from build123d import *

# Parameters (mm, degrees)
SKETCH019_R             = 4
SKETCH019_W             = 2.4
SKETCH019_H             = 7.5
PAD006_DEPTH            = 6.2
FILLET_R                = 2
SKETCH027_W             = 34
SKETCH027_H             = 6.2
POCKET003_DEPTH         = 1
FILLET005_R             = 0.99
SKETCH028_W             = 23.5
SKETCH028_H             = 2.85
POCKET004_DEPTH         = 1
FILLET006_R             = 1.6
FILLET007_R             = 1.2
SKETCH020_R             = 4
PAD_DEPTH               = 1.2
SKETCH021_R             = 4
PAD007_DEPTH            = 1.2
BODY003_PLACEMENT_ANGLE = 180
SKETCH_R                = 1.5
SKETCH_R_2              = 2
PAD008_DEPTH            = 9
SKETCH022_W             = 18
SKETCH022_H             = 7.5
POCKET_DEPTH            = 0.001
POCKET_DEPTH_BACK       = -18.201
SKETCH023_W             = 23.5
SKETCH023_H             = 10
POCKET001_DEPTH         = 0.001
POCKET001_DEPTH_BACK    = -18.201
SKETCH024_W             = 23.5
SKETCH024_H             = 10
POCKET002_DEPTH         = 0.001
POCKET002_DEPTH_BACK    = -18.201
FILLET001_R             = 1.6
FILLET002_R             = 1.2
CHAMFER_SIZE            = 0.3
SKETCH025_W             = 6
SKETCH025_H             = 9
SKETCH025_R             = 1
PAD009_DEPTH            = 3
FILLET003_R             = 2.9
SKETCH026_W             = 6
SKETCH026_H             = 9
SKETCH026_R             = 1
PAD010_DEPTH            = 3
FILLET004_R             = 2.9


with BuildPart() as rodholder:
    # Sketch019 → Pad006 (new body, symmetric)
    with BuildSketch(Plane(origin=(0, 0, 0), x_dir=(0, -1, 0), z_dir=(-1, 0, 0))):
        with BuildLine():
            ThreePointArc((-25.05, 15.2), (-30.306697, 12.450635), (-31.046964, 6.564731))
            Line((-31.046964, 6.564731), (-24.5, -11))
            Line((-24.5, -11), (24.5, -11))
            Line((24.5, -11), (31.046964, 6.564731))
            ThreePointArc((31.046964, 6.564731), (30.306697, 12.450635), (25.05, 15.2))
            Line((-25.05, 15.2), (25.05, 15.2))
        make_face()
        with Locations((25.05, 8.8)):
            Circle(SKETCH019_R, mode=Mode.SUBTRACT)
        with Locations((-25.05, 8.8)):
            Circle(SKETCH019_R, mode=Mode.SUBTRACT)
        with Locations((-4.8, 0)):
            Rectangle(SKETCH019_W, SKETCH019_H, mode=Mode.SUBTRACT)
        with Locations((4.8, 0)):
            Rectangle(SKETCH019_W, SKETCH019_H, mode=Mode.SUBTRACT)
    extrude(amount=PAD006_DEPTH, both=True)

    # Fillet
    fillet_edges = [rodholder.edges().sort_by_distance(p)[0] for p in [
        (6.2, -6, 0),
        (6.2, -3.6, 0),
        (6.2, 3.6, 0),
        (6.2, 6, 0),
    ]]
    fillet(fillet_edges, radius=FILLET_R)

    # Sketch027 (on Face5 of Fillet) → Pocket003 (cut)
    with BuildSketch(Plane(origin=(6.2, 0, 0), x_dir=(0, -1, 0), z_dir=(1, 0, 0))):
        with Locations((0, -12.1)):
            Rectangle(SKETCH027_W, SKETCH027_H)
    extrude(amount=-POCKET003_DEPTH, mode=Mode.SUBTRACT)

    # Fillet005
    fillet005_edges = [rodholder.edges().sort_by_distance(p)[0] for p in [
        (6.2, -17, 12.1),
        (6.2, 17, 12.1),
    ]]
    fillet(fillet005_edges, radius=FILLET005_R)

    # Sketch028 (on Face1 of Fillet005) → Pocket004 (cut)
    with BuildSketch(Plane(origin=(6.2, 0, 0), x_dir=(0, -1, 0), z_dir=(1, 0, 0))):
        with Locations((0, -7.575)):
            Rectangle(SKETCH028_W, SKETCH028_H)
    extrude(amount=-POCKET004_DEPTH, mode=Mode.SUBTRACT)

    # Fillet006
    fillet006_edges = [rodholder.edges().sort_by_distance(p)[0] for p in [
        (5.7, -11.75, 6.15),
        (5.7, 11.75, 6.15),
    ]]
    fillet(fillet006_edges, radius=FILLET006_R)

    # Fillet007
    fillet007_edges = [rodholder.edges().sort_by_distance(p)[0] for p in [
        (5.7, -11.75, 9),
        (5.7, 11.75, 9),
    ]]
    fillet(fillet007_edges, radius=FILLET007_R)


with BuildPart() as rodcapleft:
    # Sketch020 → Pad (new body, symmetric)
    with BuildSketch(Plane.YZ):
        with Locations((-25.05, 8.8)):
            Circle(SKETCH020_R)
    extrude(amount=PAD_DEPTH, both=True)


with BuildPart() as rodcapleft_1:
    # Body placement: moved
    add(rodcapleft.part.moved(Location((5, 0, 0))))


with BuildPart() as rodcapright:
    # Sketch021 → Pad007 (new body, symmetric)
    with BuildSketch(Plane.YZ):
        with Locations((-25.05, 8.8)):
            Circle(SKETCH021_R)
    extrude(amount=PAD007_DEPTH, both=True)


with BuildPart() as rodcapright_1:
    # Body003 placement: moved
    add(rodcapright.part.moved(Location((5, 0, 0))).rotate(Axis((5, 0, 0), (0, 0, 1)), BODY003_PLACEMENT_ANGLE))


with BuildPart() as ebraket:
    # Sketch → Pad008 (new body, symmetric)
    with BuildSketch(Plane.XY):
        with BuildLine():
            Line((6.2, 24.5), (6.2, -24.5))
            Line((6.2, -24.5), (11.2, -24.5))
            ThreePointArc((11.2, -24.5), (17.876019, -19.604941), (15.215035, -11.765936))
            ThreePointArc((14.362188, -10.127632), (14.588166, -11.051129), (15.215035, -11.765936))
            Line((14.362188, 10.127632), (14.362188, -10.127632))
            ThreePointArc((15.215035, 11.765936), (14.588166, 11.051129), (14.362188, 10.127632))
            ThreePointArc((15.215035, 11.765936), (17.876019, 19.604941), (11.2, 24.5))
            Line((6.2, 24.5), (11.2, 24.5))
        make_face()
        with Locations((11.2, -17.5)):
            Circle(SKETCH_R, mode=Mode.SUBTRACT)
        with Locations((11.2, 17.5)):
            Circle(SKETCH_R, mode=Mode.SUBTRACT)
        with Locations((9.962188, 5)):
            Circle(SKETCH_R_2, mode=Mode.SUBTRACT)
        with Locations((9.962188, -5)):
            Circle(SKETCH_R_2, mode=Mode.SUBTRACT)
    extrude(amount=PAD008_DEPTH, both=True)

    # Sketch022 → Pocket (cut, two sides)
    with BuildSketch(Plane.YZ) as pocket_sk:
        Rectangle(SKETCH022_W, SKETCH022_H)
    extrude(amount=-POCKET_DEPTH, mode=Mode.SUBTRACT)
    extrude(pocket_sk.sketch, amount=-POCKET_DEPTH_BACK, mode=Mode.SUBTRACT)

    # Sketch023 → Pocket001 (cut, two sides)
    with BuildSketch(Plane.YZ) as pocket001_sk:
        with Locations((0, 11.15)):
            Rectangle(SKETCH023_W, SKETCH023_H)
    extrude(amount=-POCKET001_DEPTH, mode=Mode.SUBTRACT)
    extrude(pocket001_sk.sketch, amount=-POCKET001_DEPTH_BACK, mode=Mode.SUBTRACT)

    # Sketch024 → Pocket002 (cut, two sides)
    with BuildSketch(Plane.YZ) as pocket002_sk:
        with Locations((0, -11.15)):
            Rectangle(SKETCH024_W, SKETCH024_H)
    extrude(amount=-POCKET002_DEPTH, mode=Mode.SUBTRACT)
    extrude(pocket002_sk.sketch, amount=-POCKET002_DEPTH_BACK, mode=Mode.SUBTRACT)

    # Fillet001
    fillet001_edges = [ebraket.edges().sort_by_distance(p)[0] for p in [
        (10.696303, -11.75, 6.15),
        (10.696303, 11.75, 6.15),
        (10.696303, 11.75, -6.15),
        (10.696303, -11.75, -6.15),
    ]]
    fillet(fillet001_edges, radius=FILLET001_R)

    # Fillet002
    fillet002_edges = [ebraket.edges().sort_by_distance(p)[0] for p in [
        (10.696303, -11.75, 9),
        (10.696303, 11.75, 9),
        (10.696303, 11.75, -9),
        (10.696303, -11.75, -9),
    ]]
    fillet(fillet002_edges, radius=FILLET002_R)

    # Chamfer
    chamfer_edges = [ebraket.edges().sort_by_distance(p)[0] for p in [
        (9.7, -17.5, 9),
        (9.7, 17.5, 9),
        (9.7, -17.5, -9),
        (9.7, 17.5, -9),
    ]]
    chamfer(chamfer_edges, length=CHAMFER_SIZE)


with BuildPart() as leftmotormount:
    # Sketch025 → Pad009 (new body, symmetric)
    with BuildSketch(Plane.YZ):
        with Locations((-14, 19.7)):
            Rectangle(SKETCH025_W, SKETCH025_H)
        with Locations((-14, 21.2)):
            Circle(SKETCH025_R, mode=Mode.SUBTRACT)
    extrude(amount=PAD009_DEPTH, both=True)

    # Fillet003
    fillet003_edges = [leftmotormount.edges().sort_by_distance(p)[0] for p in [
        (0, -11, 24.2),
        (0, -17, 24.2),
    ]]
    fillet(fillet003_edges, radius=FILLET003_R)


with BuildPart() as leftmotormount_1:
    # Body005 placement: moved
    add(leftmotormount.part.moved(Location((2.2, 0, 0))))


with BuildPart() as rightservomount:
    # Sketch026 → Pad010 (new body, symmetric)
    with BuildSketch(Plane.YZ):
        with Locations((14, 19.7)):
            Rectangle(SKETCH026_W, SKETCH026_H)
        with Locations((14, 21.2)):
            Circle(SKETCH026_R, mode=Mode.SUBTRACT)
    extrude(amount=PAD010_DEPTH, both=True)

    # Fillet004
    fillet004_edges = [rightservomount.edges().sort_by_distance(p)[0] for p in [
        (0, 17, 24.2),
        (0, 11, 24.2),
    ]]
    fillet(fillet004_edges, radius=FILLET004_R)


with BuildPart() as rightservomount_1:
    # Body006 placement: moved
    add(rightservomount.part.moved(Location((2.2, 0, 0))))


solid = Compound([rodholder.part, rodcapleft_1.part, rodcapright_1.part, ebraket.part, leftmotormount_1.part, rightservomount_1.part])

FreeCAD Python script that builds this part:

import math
import FreeCAD as App
import Part
import Sketcher
from FreeCAD import Vector
Q = App.Units.Quantity


def edges_at(feature, points):
    """Names of the edges that pass closest to the given points."""
    edges = feature.Shape.Edges
    near = lambda p: min(range(len(edges)), key=lambda i: edges[i].distToShape(Part.Vertex(*p))[0])
    return sorted({f"Edge{near(p) + 1}" for p in points})


def add_polygon(sketch, points):
    """Adds a closed chain of lines whose ends are joined by coincident constraints."""
    first, n = sketch.GeometryCount, len(points)
    for a, b in zip(points, points[1:] + points[:1]):
        sketch.addGeometry(Part.LineSegment(App.Vector(*a, 0), App.Vector(*b, 0)), False)
    for i in range(n):
        sketch.addConstraint(Sketcher.Constraint("Coincident", first + i, 2, first + (i + 1) % n, 1))

doc = App.newDocument("Part")
params = doc.addObject("Spreadsheet::Sheet", "Params")
for row, (alias, value) in enumerate([
    ("sketch1_diameter", "8 mm"),
    ("sketch1_radius", "6.400001 mm"),
    ("sketch1_width", "49 mm"),
    ("sketch1_width2", "50.1 mm"),
    ("sketch1_width3", "2.4 mm"),
    ("pad1_length", "12.4 mm"),
    ("fillet_radius", "2 mm"),
    ("sketch2_width", "34 mm"),
    ("sketch2_height", "6.2 mm"),
    ("pocket1_length", "1 mm"),
    ("fillet2_radius", "0.99 mm"),
    ("sketch3_width", "23.5 mm"),
    ("sketch3_height", "2.85 mm"),
    ("pocket2_length", "1 mm"),
    ("fillet3_radius", "1.6 mm"),
    ("fillet4_radius", "1.2 mm"),
    ("sketch4_diameter", "8 mm"),
    ("pad2_length", "2.4 mm"),
    ("sketch5_diameter", "8 mm"),
    ("pad3_length", "2.4 mm"),
    ("sketch6_diameter", "4 mm"),
    ("sketch6_diameter2", "3 mm"),
    ("sketch6_radius", "7 mm"),
    ("sketch6_width", "5 mm"),
    ("sketch6_height", "49 mm"),
    ("pad4_length", "18 mm"),
    ("sketch7_width", "18 mm"),
    ("sketch7_height", "7.5 mm"),
    ("sketch8_height", "10 mm"),
    ("sketch8_width", "23.5 mm"),
    ("sketch9_height", "10 mm"),
    ("sketch9_width", "23.5 mm"),
    ("fillet5_radius", "1.6 mm"),
    ("fillet6_radius", "1.2 mm"),
    ("chamfer_size", "0.3 mm"),
    ("sketch10_diameter", "2 mm"),
    ("sketch10_width", "6 mm"),
    ("sketch10_height", "9 mm"),
    ("pad5_length", "6 mm"),
    ("fillet7_radius", "2.9 mm"),
    ("sketch11_diameter", "2 mm"),
    ("sketch11_width", "6 mm"),
    ("sketch11_height", "9 mm"),
    ("pad6_length", "6 mm"),
    ("fillet8_radius", "2.9 mm"),
], start=1):
    params.set(f"A{row}", alias)
    params.set(f"B{row}", "=" + value)
    params.setAlias(f"B{row}", alias)

body = doc.addObject("PartDesign::Body", "Body")

# Sketch on YZ plane
sketch1 = body.newObject("Sketcher::SketchObject", "Sketch")
sketch1.AttachmentSupport = (doc.getObject("YZ_Plane"), [""])
sketch1.MapMode = "FlatFace"
sketch1.addGeometry(Part.ArcOfCircle(Part.Circle(Vector(25, 8.8, 0), Vector(0, 0, 1), 6.4), math.radians(-20), math.radians(90)), False)  # 0
sketch1.addGeometry(Part.LineSegment(Vector(31, 6.6, 0), Vector(24.5, -11, 0)), False)  # 1
sketch1.addGeometry(Part.LineSegment(Vector(24.5, -11, 0), Vector(-24.5, -11, 0)), False)  # 2
sketch1.addGeometry(Part.LineSegment(Vector(-24.5, -11, 0), Vector(-31, 6.6, 0)), False)  # 3
sketch1.addGeometry(Part.ArcOfCircle(Part.Circle(Vector(-25, 8.8, 0), Vector(0, 0, 1), 6.4), math.radians(90), math.radians(200)), False)  # 4
sketch1.addGeometry(Part.LineSegment(Vector(-25.1, 15.2, 0), Vector(25.1, 15.2, 0)), False)  # 5
add_polygon(sketch1, [(3.6, -3.8), (6, -3.8), (6, 3.8), (3.6, 3.8)])  # lines 6-9
add_polygon(sketch1, [(-6, -3.8), (-3.6, -3.8), (-3.6, 3.8), (-6, 3.8)])  # lines 10-13
sketch1.addGeometry(Part.Circle(Vector(25.1, 8.8, 0), Vector(0, 0, 1), 4), False)  # 14
sketch1.addGeometry(Part.Circle(Vector(-25.1, 8.8, 0), Vector(0, 0, 1), 4), False)  # 15
sketch1.addConstraint([
    Sketcher.Constraint("Tangent", 0, 1, 1, 1),
    Sketcher.Constraint("Coincident", 1, 2, 2, 1),
    Sketcher.Constraint("Coincident", 2, 2, 3, 1),
    Sketcher.Constraint("Tangent", 3, 2, 4, 2),
    Sketcher.Constraint("Tangent", 4, 1, 5, 1),
    Sketcher.Constraint("Tangent", 5, 2, 0, 2),
    Sketcher.Constraint("Horizontal", 2),
    Sketcher.Constraint("Horizontal", 5),
    Sketcher.Constraint("Horizontal", 6),
    Sketcher.Constraint("Vertical", 7),
    Sketcher.Constraint("Horizontal", 8),
    Sketcher.Constraint("Vertical", 9),
    Sketcher.Constraint("Horizontal", 10),
    Sketcher.Constraint("Vertical", 11),
    Sketcher.Constraint("Horizontal", 12),
    Sketcher.Constraint("Vertical", 13),
    Sketcher.Constraint("Coincident", 14, 3, 0, 3),
    Sketcher.Constraint("Coincident", 15, 3, 4, 3),
    Sketcher.Constraint("Equal", 0, 4),
    Sketcher.Constraint("Equal", 14, 15),
    Sketcher.Constraint("Symmetric", 8, 2, 10, 2, -1, 1),
    Sketcher.Constraint("Symmetric", 6, 2, 12, 2, -1, 1),
    Sketcher.Constraint("Symmetric", 0, 1, 3, 2, -2),
    Sketcher.Constraint("Horizontal", 9, 2, 10, 2),
    Sketcher.Constraint("Diameter", 14, Q("8 mm")),
    Sketcher.Constraint("Radius", 0, Q("6.400001 mm")),
    Sketcher.Constraint("DistanceX", 2, 2, 2, 1, Q("49 mm")),
    Sketcher.Constraint("DistanceX", 5, 1, 5, 2, Q("50.1 mm")),
    Sketcher.Constraint("DistanceX", 6, 1, 6, 2, Q("2.4 mm")),
    Sketcher.Constraint("DistanceY", 7, 1, 7, 2, Q("7.5 mm")),
    Sketcher.Constraint("DistanceY", 1, 2, -1, 1, Q("11 mm")),
    Sketcher.Constraint("DistanceX", -1, 1, 6, 2, Q("6 mm")),
    Sketcher.Constraint("DistanceY", -1, 1, 0, 3, Q("8.799999 mm")),
])
sketch1.setExpression("Constraints[32]", "Params.sketch1_diameter")
sketch1.setExpression("Constraints[33]", "Params.sketch1_radius")
sketch1.setExpression("Constraints[34]", "Params.sketch1_width")
sketch1.setExpression("Constraints[35]", "Params.sketch1_width2")
sketch1.setExpression("Constraints[36]", "Params.sketch1_width3")
pad1 = body.newObject("PartDesign::Pad", "Pad")
pad1.Profile = sketch1
pad1.setExpression("Length", "Params.pad1_length")
pad1.Midplane = True
doc.recompute()

fillet = body.newObject("PartDesign::Fillet", "Fillet")
fillet.Base = (pad1, edges_at(pad1, [
    (6.2, -6, 0),
    (6.2, -3.6, 0),
    (6.2, 3.6, 0),
    (6.2, 6, 0),
]))
fillet.setExpression("Radius", "Params.fillet_radius")

# Sketch on YZ plane
sketch2 = body.newObject("Sketcher::SketchObject", "Sketch001")
sketch2.AttachmentSupport = (doc.getObject("YZ_Plane"), [""])
sketch2.MapMode = "FlatFace"
sketch2.AttachmentOffset = App.Placement(Vector(0, 0, 6.2), App.Rotation())
add_polygon(sketch2, [(17, 9), (17, 15), (-17, 15), (-17, 9)])  # lines 0-3
sketch2.addConstraint([
    Sketcher.Constraint("Vertical", 0),
    Sketcher.Constraint("Horizontal", 1),
    Sketcher.Constraint("Vertical", 2),
    Sketcher.Constraint("Horizontal", 3),
    Sketcher.Constraint("DistanceX", 1, 2, 1, 1, Q("34 mm")),
    Sketcher.Constraint("DistanceY", 0, 1, 0, 2, Q("6.2 mm")),
    Sketcher.Constraint("DistanceX", -1, 1, 0, 2, Q("17 mm")),
    Sketcher.Constraint("DistanceY", -1, 1, 2, 2, Q("9 mm")),
])
sketch2.setExpression("Constraints[8]", "Params.sketch2_width")
sketch2.setExpression("Constraints[9]", "Params.sketch2_height")
pocket1 = body.newObject("PartDesign::Pocket", "Pocket")
pocket1.Profile = sketch2
pocket1.setExpression("Length", "Params.pocket1_length")
doc.recompute()

fillet2 = body.newObject("PartDesign::Fillet", "Fillet001")
fillet2.Base = (pocket1, edges_at(pocket1, [(6.2, -17, 12.1), (6.2, 17, 12.1)]))
fillet2.setExpression("Radius", "Params.fillet2_radius")

# Sketch on YZ plane
sketch3 = body.newObject("Sketcher::SketchObject", "Sketch002")
sketch3.AttachmentSupport = (doc.getObject("YZ_Plane"), [""])
sketch3.MapMode = "FlatFace"
sketch3.AttachmentOffset = App.Placement(Vector(0, 0, 6.2), App.Rotation())
add_polygon(sketch3, [(11.8, 6.2), (11.8, 9), (-11.8, 9), (-11.8, 6.2)])  # lines 0-3
sketch3.addConstraint([
    Sketcher.Constraint("Vertical", 0),
    Sketcher.Constraint("Horizontal", 1),
    Sketcher.Constraint("Vertical", 2),
    Sketcher.Constraint("Horizontal", 3),
    Sketcher.Constraint("DistanceX", 1, 2, 1, 1, Q("23.5 mm")),
    Sketcher.Constraint("DistanceY", -1, 1, 0, 2, Q("9 mm")),
    Sketcher.Constraint("DistanceY", 0, 1, 0, 2, Q("2.85 mm")),
    Sketcher.Constraint("DistanceX", -1, 1, 0, 2, Q("11.75 mm")),
])
sketch3.setExpression("Constraints[8]", "Params.sketch3_width")
sketch3.setExpression("Constraints[10]", "Params.sketch3_height")
pocket2 = body.newObject("PartDesign::Pocket", "Pocket001")
pocket2.Profile = sketch3
pocket2.setExpression("Length", "Params.pocket2_length")
doc.recompute()

fillet3 = body.newObject("PartDesign::Fillet", "Fillet002")
fillet3.Base = (pocket2, edges_at(pocket2, [(5.7, -11.75, 6.15), (5.7, 11.75, 6.15)]))
fillet3.setExpression("Radius", "Params.fillet3_radius")
doc.recompute()

fillet4 = body.newObject("PartDesign::Fillet", "Fillet003")
fillet4.Base = (fillet3, edges_at(fillet3, [(5.7, -11.75, 9), (5.7, 11.75, 9)]))
fillet4.setExpression("Radius", "Params.fillet4_radius")
body2 = doc.addObject("PartDesign::Body", "Body001")

# Sketch on YZ plane
sketch4 = body2.newObject("Sketcher::SketchObject", "Sketch003")
sketch4.AttachmentSupport = (doc.getObject("YZ_Plane001"), [""])
sketch4.MapMode = "FlatFace"
sketch4.addGeometry(Part.Circle(Vector(-25.1, 8.8, 0), Vector(0, 0, 1), 4), False)
sketch4.addConstraint([
    Sketcher.Constraint("Diameter", 0, Q("8 mm")),
    Sketcher.Constraint("DistanceY", -1, 1, 0, 3, Q("8.8 mm")),
    Sketcher.Constraint("DistanceX", 0, 3, -1, 1, Q("25.05 mm")),
])
sketch4.setExpression("Constraints[0]", "Params.sketch4_diameter")
pad2 = body2.newObject("PartDesign::Pad", "Pad001")
pad2.Profile = sketch4
pad2.setExpression("Length", "Params.pad2_length")
pad2.Midplane = True
body3 = doc.addObject("PartDesign::Body", "Body002")
doc.recompute()

body2.Placement = App.Placement(Vector(5, 0, 0), App.Rotation(Vector(0, 0, 1), 0))
boolean = body3.newObject("PartDesign::Boolean", "Boolean")
boolean.Type = "Fuse"
boolean.addObjects([body2])
body4 = doc.addObject("PartDesign::Body", "Body003")

# Sketch on YZ plane
sketch5 = body4.newObject("Sketcher::SketchObject", "Sketch004")
sketch5.AttachmentSupport = (doc.getObject("YZ_Plane003"), [""])
sketch5.MapMode = "FlatFace"
sketch5.addGeometry(Part.Circle(Vector(-25.1, 8.8, 0), Vector(0, 0, 1), 4), False)
sketch5.addConstraint([
    Sketcher.Constraint("Diameter", 0, Q("8 mm")),
    Sketcher.Constraint("DistanceY", -1, 1, 0, 3, Q("8.8 mm")),
    Sketcher.Constraint("DistanceX", 0, 3, -1, 1, Q("25.05 mm")),
])
sketch5.setExpression("Constraints[0]", "Params.sketch5_diameter")
pad3 = body4.newObject("PartDesign::Pad", "Pad002")
pad3.Profile = sketch5
pad3.setExpression("Length", "Params.pad3_length")
pad3.Midplane = True
body5 = doc.addObject("PartDesign::Body", "Body004")
doc.recompute()

body4.Placement = App.Placement(Vector(5, 0, 0), App.Rotation(Vector(0, 0, 1), 180))
boolean2 = body5.newObject("PartDesign::Boolean", "Boolean001")
boolean2.Type = "Fuse"
boolean2.addObjects([body4])
body6 = doc.addObject("PartDesign::Body", "Body005")

# Sketch on XY plane
sketch6 = body6.newObject("Sketcher::SketchObject", "Sketch005")
sketch6.AttachmentSupport = (doc.getObject("XY_Plane005"), [""])
sketch6.MapMode = "FlatFace"
sketch6.addGeometry([
    Part.LineSegment(Vector(6.2, 24.5, 0), Vector(6.2, -24.5, 0)),  # 0
    Part.LineSegment(Vector(6.2, -24.5, 0), Vector(11.2, -24.5, 0)),  # 1
    Part.ArcOfCircle(Part.Circle(Vector(11.2, -17.5, 0), Vector(0, 0, 1), 7), math.radians(-90), math.radians(55)),  # 2
    Part.ArcOfCircle(Part.Circle(Vector(16.4, -10.1, 0), Vector(0, 0, 1), 2), math.radians(180), math.radians(235)),  # 3
    Part.LineSegment(Vector(14.4, -10.1, 0), Vector(14.4, 10.1, 0)),  # 4
    Part.ArcOfCircle(Part.Circle(Vector(16.4, 10.1, 0), Vector(0, 0, 1), 2), math.radians(125), math.radians(180)),  # 5
    Part.ArcOfCircle(Part.Circle(Vector(11.2, 17.5, 0), Vector(0, 0, 1), 7), math.radians(-55), math.radians(90)),  # 6
    Part.LineSegment(Vector(11.2, 24.5, 0), Vector(6.2, 24.5, 0)),  # 7
    Part.Circle(Vector(10, -5, 0), Vector(0, 0, 1), 2),  # 8
    Part.Circle(Vector(11.2, -17.5, 0), Vector(0, 0, 1), 1.5),  # 9
    Part.Circle(Vector(10, 5, 0), Vector(0, 0, 1), 2),  # 10
    Part.Circle(Vector(11.2, 17.5, 0), Vector(0, 0, 1), 1.5),  # 11
], False)
sketch6.addConstraint([
    Sketcher.Constraint("Coincident", 0, 2, 1, 1),
    Sketcher.Constraint("Tangent", 1, 2, 2, 1),
    Sketcher.Constraint("Tangent", 2, 2, 3, 2),
    Sketcher.Constraint("Tangent", 3, 1, 4, 1),
    Sketcher.Constraint("Tangent", 4, 2, 5, 2),
    Sketcher.Constraint("Tangent", 5, 1, 6, 1),
    Sketcher.Constraint("Tangent", 6, 2, 7, 1),
    Sketcher.Constraint("Coincident", 7, 2, 0, 1),
    Sketcher.Constraint("Vertical", 0),
    Sketcher.Constraint("Horizontal", 1),
    Sketcher.Constraint("Vertical", 4),
    Sketcher.Constraint("Horizontal", 7),
    Sketcher.Constraint("Coincident", 9, 3, 2, 3),
    Sketcher.Constraint("Coincident", 11, 3, 6, 3),
    Sketcher.Constraint("Equal", 3, 5),
    Sketcher.Constraint("Equal", 2, 6),
    Sketcher.Constraint("Equal", 5, 8),
    Sketcher.Constraint("Equal", 8, 10),
    Sketcher.Constraint("Equal", 9, 11),
    Sketcher.Constraint("Symmetric", 2, 3, 6, 3, -1),
    Sketcher.Constraint("Symmetric", 8, 3, 10, 3, -1),
    Sketcher.Constraint("Diameter", 8, Q("4 mm")),
    Sketcher.Constraint("Diameter", 9, Q("3 mm")),
    Sketcher.Constraint("Radius", 2, Q("7 mm")),
    Sketcher.Constraint("DistanceX", 1, 1, 1, 2, Q("5 mm")),
    Sketcher.Constraint("DistanceY", 0, 2, 0, 1, Q("49 mm")),
    Sketcher.Constraint("DistanceY", 8, 3, -1, 1, Q("5 mm")),
    Sketcher.Constraint("DistanceX", -1, 1, 2, 3, Q("11.200001 mm")),
    Sketcher.Constraint("DistanceX", 8, 3, 3, 3, Q("6.399999 mm")),
    Sketcher.Constraint("DistanceY", 4, 1, 4, 2, Q("20.255264 mm")),
])
sketch6.setExpression("Constraints[21]", "Params.sketch6_diameter")
sketch6.setExpression("Constraints[22]", "Params.sketch6_diameter2")
sketch6.setExpression("Constraints[23]", "Params.sketch6_radius")
sketch6.setExpression("Constraints[24]", "Params.sketch6_width")
sketch6.setExpression("Constraints[25]", "Params.sketch6_height")
pad4 = body6.newObject("PartDesign::Pad", "Pad003")
pad4.Profile = sketch6
pad4.setExpression("Length", "Params.pad4_length")
pad4.Midplane = True

# Sketch on YZ plane
sketch7 = body6.newObject("Sketcher::SketchObject", "Sketch006")
sketch7.AttachmentSupport = (doc.getObject("YZ_Plane005"), [""])
sketch7.MapMode = "FlatFace"
add_polygon(sketch7, [(-9, 4), (-9, -4), (9, -4), (9, 4)])  # lines 0-3
sketch7.addConstraint([
    Sketcher.Constraint("Vertical", 0),
    Sketcher.Constraint("Horizontal", 1),
    Sketcher.Constraint("Vertical", 2),
    Sketcher.Constraint("Horizontal", 3),
    Sketcher.Constraint("Symmetric", 0, 2, 2, 2, -1, 1),
    Sketcher.Constraint("DistanceX", 1, 1, 1, 2, Q("18 mm")),
    Sketcher.Constraint("DistanceY", 0, 2, 0, 1, Q("7.5 mm")),
])
sketch7.setExpression("Constraints[9]", "Params.sketch7_width")
sketch7.setExpression("Constraints[10]", "Params.sketch7_height")
pocket3 = body6.newObject("PartDesign::Pocket", "Pocket002")
pocket3.Profile = sketch7
pocket3.Type = "ThroughAll"
pocket3.Midplane = True

# Sketch on YZ plane
sketch8 = body6.newObject("Sketcher::SketchObject", "Sketch007")
sketch8.AttachmentSupport = (doc.getObject("YZ_Plane005"), [""])
sketch8.MapMode = "FlatFace"
add_polygon(sketch8, [(-12, 16), (-12, 6), (12, 6), (12, 16)])  # lines 0-3
sketch8.addConstraint([
    Sketcher.Constraint("Vertical", 0),
    Sketcher.Constraint("Horizontal", 1),
    Sketcher.Constraint("Vertical", 2),
    Sketcher.Constraint("Horizontal", 3),
    Sketcher.Constraint("DistanceY", 0, 2, 0, 1, Q("10 mm")),
    Sketcher.Constraint("DistanceX", 1, 1, 1, 2, Q("23.5 mm")),
    Sketcher.Constraint("DistanceX", 0, 2, -1, 1, Q("11.75 mm")),
    Sketcher.Constraint("DistanceY", -1, 1, 0, 2, Q("6.15 mm")),
])
sketch8.setExpression("Constraints[8]", "Params.sketch8_height")
sketch8.setExpression("Constraints[9]", "Params.sketch8_width")
pocket4 = body6.newObject("PartDesign::Pocket", "Pocket003")
pocket4.Profile = sketch8
pocket4.Type = "ThroughAll"
pocket4.Midplane = True

# Sketch on YZ plane
sketch9 = body6.newObject("Sketcher::SketchObject", "Sketch008")
sketch9.AttachmentSupport = (doc.getObject("YZ_Plane005"), [""])
sketch9.MapMode = "FlatFace"
add_polygon(sketch9, [(-12, -6), (-12, -16), (12, -16), (12, -6)])  # lines 0-3
sketch9.addConstraint([
    Sketcher.Constraint("Vertical", 0),
    Sketcher.Constraint("Horizontal", 1),
    Sketcher.Constraint("Vertical", 2),
    Sketcher.Constraint("Horizontal", 3),
    Sketcher.Constraint("DistanceY", 0, 2, 0, 1, Q("10 mm")),
    Sketcher.Constraint("DistanceX", 1, 1, 1, 2, Q("23.5 mm")),
    Sketcher.Constraint("DistanceX", 0, 2, -1, 1, Q("11.75 mm")),
    Sketcher.Constraint("DistanceY", 0, 2, -1, 1, Q("16.15 mm")),
])
sketch9.setExpression("Constraints[8]", "Params.sketch9_height")
sketch9.setExpression("Constraints[9]", "Params.sketch9_width")
pocket5 = body6.newObject("PartDesign::Pocket", "Pocket004")
pocket5.Profile = sketch9
pocket5.Type = "ThroughAll"
pocket5.Midplane = True
doc.recompute()

fillet5 = body6.newObject("PartDesign::Fillet", "Fillet004")
fillet5.Base = (pocket5, edges_at(pocket5, [
    (10.696, -11.75, 6.15),
    (10.696, 11.75, 6.15),
    (10.696, 11.75, -6.15),
    (10.696, -11.75, -6.15),
]))
fillet5.setExpression("Radius", "Params.fillet5_radius")
doc.recompute()

fillet6 = body6.newObject("PartDesign::Fillet", "Fillet005")
fillet6.Base = (fillet5, edges_at(fillet5, [
    (10.696, -11.75, 9),
    (10.696, 11.75, 9),
    (10.696, 11.75, -9),
    (10.696, -11.75, -9),
]))
fillet6.setExpression("Radius", "Params.fillet6_radius")
doc.recompute()

chamfer = body6.newObject("PartDesign::Chamfer", "Chamfer")
chamfer.Base = (fillet6, edges_at(fillet6, [
    (9.7, -17.5, 9),
    (9.7, 17.5, 9),
    (9.7, -17.5, -9),
    (9.7, 17.5, -9),
]))
chamfer.setExpression("Size", "Params.chamfer_size")
body7 = doc.addObject("PartDesign::Body", "Body006")

# Sketch on YZ plane
sketch10 = body7.newObject("Sketcher::SketchObject", "Sketch009")
sketch10.AttachmentSupport = (doc.getObject("YZ_Plane006"), [""])
sketch10.MapMode = "FlatFace"
add_polygon(sketch10, [(-17, 24.2), (-17, 15.2), (-11, 15.2), (-11, 24.2)])  # lines 0-3
sketch10.addGeometry(Part.Circle(Vector(-14, 21.2, 0), Vector(0, 0, 1), 1), False)  # 4
sketch10.addConstraint([
    Sketcher.Constraint("Vertical", 0),
    Sketcher.Constraint("Horizontal", 1),
    Sketcher.Constraint("Vertical", 2),
    Sketcher.Constraint("Horizontal", 3),
    Sketcher.Constraint("Diameter", 4, Q("2 mm")),
    Sketcher.Constraint("DistanceX", 1, 1, 1, 2, Q("6 mm")),
    Sketcher.Constraint("DistanceY", 0, 2, 0, 1, Q("9 mm")),
    Sketcher.Constraint("DistanceX", 4, 3, -1, 1, Q("14 mm")),
    Sketcher.Constraint("DistanceX", 0, 2, -1, 1, Q("17 mm")),
    Sketcher.Constraint("DistanceY", 0, 2, 4, 3, Q("6 mm")),
    Sketcher.Constraint("DistanceY", -1, 1, 4, 3, Q("21.2 mm")),
])
sketch10.setExpression("Constraints[8]", "Params.sketch10_diameter")
sketch10.setExpression("Constraints[9]", "Params.sketch10_width")
sketch10.setExpression("Constraints[10]", "Params.sketch10_height")
pad5 = body7.newObject("PartDesign::Pad", "Pad004")
pad5.Profile = sketch10
pad5.setExpression("Length", "Params.pad5_length")
pad5.Midplane = True
doc.recompute()

fillet7 = body7.newObject("PartDesign::Fillet", "Fillet006")
fillet7.Base = (pad5, edges_at(pad5, [(0, -11, 24.2), (0, -17, 24.2)]))
fillet7.setExpression("Radius", "Params.fillet7_radius")
body8 = doc.addObject("PartDesign::Body", "Body007")
doc.recompute()

body7.Placement = App.Placement(Vector(2.2, 0, 0), App.Rotation(Vector(0, 0, 1), 0))
boolean3 = body8.newObject("PartDesign::Boolean", "Boolean002")
boolean3.Type = "Fuse"
boolean3.addObjects([body7])
body9 = doc.addObject("PartDesign::Body", "Body008")

# Sketch on YZ plane
sketch11 = body9.newObject("Sketcher::SketchObject", "Sketch010")
sketch11.AttachmentSupport = (doc.getObject("YZ_Plane008"), [""])
sketch11.MapMode = "FlatFace"
add_polygon(sketch11, [(11, 24.2), (11, 15.2), (17, 15.2), (17, 24.2)])  # lines 0-3
sketch11.addGeometry(Part.Circle(Vector(14, 21.2, 0), Vector(0, 0, 1), 1), False)  # 4
sketch11.addConstraint([
    Sketcher.Constraint("Vertical", 0),
    Sketcher.Constraint("Horizontal", 1),
    Sketcher.Constraint("Vertical", 2),
    Sketcher.Constraint("Horizontal", 3),
    Sketcher.Constraint("Diameter", 4, Q("2 mm")),
    Sketcher.Constraint("DistanceX", 1, 1, 1, 2, Q("6 mm")),
    Sketcher.Constraint("DistanceY", 0, 2, 0, 1, Q("9 mm")),
    Sketcher.Constraint("DistanceX", -1, 1, 4, 3, Q("14 mm")),
    Sketcher.Constraint("DistanceX", -1, 1, 0, 2, Q("11 mm")),
    Sketcher.Constraint("DistanceY", 0, 2, 4, 3, Q("6 mm")),
    Sketcher.Constraint("DistanceY", -1, 1, 4, 3, Q("21.2 mm")),
])
sketch11.setExpression("Constraints[8]", "Params.sketch11_diameter")
sketch11.setExpression("Constraints[9]", "Params.sketch11_width")
sketch11.setExpression("Constraints[10]", "Params.sketch11_height")
pad6 = body9.newObject("PartDesign::Pad", "Pad005")
pad6.Profile = sketch11
pad6.setExpression("Length", "Params.pad6_length")
pad6.Midplane = True
doc.recompute()

fillet8 = body9.newObject("PartDesign::Fillet", "Fillet007")
fillet8.Base = (pad6, edges_at(pad6, [(0, 17, 24.2), (0, 11, 24.2)]))
fillet8.setExpression("Radius", "Params.fillet8_radius")
body10 = doc.addObject("PartDesign::Body", "Body009")
doc.recompute()

body9.Placement = App.Placement(Vector(2.2, 0, 0), App.Rotation(Vector(0, 0, 1), 0))
boolean4 = body10.newObject("PartDesign::Boolean", "Boolean003")
boolean4.Type = "Fuse"
boolean4.addObjects([body9])

doc.recompute()
